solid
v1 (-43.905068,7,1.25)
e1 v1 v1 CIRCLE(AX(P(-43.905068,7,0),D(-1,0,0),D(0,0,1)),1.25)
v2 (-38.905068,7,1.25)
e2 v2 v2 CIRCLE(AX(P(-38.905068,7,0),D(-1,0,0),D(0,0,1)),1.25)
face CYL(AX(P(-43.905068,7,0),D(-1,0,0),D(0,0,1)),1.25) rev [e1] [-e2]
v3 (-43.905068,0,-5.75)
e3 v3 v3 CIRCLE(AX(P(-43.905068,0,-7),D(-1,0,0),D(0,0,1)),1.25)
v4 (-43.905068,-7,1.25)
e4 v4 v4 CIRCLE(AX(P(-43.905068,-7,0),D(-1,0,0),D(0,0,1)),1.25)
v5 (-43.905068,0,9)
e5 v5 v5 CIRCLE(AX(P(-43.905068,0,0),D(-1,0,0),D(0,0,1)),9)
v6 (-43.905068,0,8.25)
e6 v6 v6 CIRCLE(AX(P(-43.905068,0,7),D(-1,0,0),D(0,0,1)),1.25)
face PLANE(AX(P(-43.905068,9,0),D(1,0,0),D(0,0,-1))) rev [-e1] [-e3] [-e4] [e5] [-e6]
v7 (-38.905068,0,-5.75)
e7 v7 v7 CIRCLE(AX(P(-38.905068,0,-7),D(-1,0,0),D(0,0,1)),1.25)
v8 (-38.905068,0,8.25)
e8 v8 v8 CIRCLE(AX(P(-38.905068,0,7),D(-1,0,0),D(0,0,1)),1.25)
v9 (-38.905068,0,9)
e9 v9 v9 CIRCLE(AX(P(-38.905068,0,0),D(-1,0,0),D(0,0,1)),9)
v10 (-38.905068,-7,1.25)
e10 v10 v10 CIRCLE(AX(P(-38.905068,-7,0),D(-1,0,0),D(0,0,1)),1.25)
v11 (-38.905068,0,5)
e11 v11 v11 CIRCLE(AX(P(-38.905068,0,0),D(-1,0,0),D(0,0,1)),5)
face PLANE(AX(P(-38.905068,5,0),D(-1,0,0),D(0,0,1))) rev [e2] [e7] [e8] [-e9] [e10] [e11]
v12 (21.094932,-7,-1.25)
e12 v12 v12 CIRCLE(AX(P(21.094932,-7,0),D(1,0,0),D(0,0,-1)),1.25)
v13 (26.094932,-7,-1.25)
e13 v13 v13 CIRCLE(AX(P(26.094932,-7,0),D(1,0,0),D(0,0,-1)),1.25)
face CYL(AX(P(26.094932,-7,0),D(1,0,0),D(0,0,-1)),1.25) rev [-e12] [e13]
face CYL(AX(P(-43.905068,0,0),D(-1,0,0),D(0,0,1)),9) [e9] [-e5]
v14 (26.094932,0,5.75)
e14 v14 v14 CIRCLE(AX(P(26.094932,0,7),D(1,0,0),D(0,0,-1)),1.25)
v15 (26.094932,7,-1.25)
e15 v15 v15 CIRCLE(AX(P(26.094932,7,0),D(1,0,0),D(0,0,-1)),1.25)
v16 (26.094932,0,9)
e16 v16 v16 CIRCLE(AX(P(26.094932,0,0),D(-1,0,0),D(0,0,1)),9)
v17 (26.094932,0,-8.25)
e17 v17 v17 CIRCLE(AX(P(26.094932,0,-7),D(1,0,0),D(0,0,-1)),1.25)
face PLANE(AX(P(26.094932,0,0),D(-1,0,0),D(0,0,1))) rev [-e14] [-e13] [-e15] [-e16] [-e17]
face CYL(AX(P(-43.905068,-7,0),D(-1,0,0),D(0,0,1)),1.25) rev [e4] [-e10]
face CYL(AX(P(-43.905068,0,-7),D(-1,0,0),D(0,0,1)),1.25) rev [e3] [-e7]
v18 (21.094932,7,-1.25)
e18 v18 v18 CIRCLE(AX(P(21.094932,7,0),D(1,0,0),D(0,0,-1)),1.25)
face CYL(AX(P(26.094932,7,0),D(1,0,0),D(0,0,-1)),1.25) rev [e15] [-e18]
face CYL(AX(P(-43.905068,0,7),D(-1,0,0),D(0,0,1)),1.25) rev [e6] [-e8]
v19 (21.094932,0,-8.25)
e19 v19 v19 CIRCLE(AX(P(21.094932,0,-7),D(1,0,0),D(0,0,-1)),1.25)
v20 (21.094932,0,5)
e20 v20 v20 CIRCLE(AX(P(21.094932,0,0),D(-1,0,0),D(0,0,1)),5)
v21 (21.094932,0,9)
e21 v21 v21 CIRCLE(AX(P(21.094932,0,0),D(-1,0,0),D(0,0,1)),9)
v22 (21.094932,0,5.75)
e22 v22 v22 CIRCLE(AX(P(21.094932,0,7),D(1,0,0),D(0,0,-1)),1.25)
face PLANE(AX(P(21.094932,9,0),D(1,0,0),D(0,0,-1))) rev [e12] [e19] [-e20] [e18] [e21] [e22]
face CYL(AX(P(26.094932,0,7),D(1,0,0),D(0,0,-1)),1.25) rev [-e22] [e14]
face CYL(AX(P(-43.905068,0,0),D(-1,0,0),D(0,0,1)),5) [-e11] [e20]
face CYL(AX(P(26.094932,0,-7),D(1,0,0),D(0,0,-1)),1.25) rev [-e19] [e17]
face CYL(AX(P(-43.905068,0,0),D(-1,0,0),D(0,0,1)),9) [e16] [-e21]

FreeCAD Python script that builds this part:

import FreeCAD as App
import Part
import Sketcher

V = App.Vector
Q = App.Units.Quantity

doc = App.newDocument("Part")
params = doc.addObject("Spreadsheet::Sheet", "Params")
for row, (alias, value) in enumerate([
    ("sketch1_width", "70 mm"),
    ("sketch1_width2", "5 mm"),
    ("sketch1_height", "9 mm"),
    ("sketch1_height2", "4 mm"),
    ("revolution_angle", "360 deg"),
    ("sketch2_diameter", "2.5 mm"),
    ("hole_diameter", "2.5 mm"),
    ("hole_depth", "5 mm"),
    ("sketch3_diameter", "2.5 mm"),
    ("hole2_diameter", "2.5 mm"),
    ("hole2_depth", "5 mm"),
], start=1):
    params.set(f"A{row}", alias)
    params.set(f"B{row}", "=" + value)
    params.setAlias(f"B{row}", alias)

body = doc.addObject("PartDesign::Body", "Body")

# Sketch on XY plane
sketch1 = body.newObject("Sketcher::SketchObject", "Sketch")
sketch1.AttachmentSupport = (doc.getObject("XY_Plane"), [""])
sketch1.MapMode = "FlatFace"
sketch1.addGeometry([
    Part.LineSegment(V(-43.9, 0, 0), V(26.1, 0, 0)),  # 0
    Part.LineSegment(V(26.1, 0, 0), V(26.1, 9, 0)),  # 1
    Part.LineSegment(V(26.1, 9, 0), V(21.1, 9, 0)),  # 2
    Part.LineSegment(V(21.1, 9, 0), V(21.1, 5, 0)),  # 3
    Part.LineSegment(V(21.1, 5, 0), V(-38.9, 5, 0)),  # 4
    Part.LineSegment(V(-38.9, 5, 0), V(-38.9, 9, 0)),  # 5
    Part.LineSegment(V(-38.9, 9, 0), V(-43.9, 9, 0)),  # 6
    Part.LineSegment(V(-43.9, 9, 0), V(-43.9, 0, 0)),  # 7
], False)
sketch1.addConstraint([
    Sketcher.Constraint("Coincident", 0, 2, 1, 1),
    Sketcher.Constraint("Coincident", 1, 2, 2, 1),
    Sketcher.Constraint("Coincident", 2, 2, 3, 1),
    Sketcher.Constraint("Coincident", 3, 2, 4, 1),
    Sketcher.Constraint("Coincident", 4, 2, 5, 1),
    Sketcher.Constraint("Coincident", 5, 2, 6, 1),
    Sketcher.Constraint("Coincident", 6, 2, 7, 1),
    Sketcher.Constraint("Coincident", 7, 2, 0, 1),
    Sketcher.Constraint("Horizontal", 0),
    Sketcher.Constraint("Vertical", 1),
    Sketcher.Constraint("Horizontal", 2),
    Sketcher.Constraint("Vertical", 3),
    Sketcher.Constraint("Horizontal", 4),
    Sketcher.Constraint("Vertical", 5),
    Sketcher.Constraint("Horizontal", 6),
    Sketcher.Constraint("Vertical", 7),
    Sketcher.Constraint("PointOnObject", 0, 2, -1),
    Sketcher.Constraint("Horizontal", 2, 2, 5, 2),
    Sketcher.Constraint("Equal", 2, 6),
    Sketcher.Constraint("DistanceX", 0, 1, 0, 2, Q("70 mm")),
    Sketcher.Constraint("DistanceX", 2, 2, 2, 1, Q("5 mm")),
    Sketcher.Constraint("DistanceY", 1, 1, 1, 2, Q("9 mm")),
    Sketcher.Constraint("DistanceY", 3, 2, 3, 1, Q("4 mm")),
    Sketcher.Constraint("DistanceX", -1, 1, 0, 2, Q("26.094932 mm")),
])
sketch1.setExpression("Constraints[19]", "Params.sketch1_width")
sketch1.setExpression("Constraints[20]", "Params.sketch1_width2")
sketch1.setExpression("Constraints[21]", "Params.sketch1_height")
sketch1.setExpression("Constraints[22]", "Params.sketch1_height2")
revolution = body.newObject("PartDesign::Revolution", "Revolution")
revolution.Profile = sketch1
revolution.ReferenceAxis = (sketch1, ["H_Axis"])
revolution.setExpression("Angle", "Params.revolution_angle")

# Sketch on YZ plane
sketch2 = body.newObject("Sketcher::SketchObject", "Sketch001")
sketch2.AttachmentSupport = (doc.getObject("YZ_Plane"), [""])
sketch2.MapMode = "FlatFace"
sketch2.AttachmentOffset = App.Placement(V(0, 0, -43.905068), App.Rotation())
sketch2.addGeometry([
    Part.Circle(V(0, 7, 0), V(0, 0, 1), 1.2),
    Part.Circle(V(7, 0, 0), V(0, 0, 1), 1.2),
    Part.Circle(V(0, -7, 0), V(0, 0, 1), 1.2),
    Part.Circle(V(-7, 0, 0), V(0, 0, 1), 1.2),
], False)
sketch2.addConstraint([
    Sketcher.Constraint("Equal", 0, 1),
    Sketcher.Constraint("Equal", 1, 2),
    Sketcher.Constraint("Equal", 2, 3),
    Sketcher.Constraint("Symmetric", 0, 3, 2, 3, -1, 1),
    Sketcher.Constraint("Symmetric", 1, 3, 3, 3, -1, 1),
    Sketcher.Constraint("PointOnObject", 0, 3, -2),
    Sketcher.Constraint("PointOnObject", 1, 3, -1),
    Sketcher.Constraint("Diameter", 0, Q("2.5 mm")),
    Sketcher.Constraint("DistanceY", -1, 1, 0, 3, Q("7 mm")),
    Sketcher.Constraint("DistanceX", -1, 1, 1, 3, Q("7 mm")),
])
sketch2.setExpression("Constraints[7]", "Params.sketch2_diameter")
doc.recompute()
hole = body.newObject("PartDesign::Hole", "Hole")
hole.Profile = sketch2
hole.ThreadType = "None"
hole.setExpression("Diameter", "Params.hole_diameter")
hole.DepthType = "Dimension"
hole.setExpression("Depth", "Params.hole_depth")
hole.DrillPoint = "Angled"
hole.DrillPointAngle = 118
hole.Reversed = True

# Sketch on YZ plane
sketch3 = body.newObject("Sketcher::SketchObject", "Sketch002")
sketch3.AttachmentSupport = (doc.getObject("YZ_Plane"), [""])
sketch3.MapMode = "FlatFace"
sketch3.AttachmentOffset = App.Placement(V(0, 0, 26.094932), App.Rotation())
sketch3.addGeometry([
    Part.Circle(V(-7, 0, 0), V(0, 0, 1), 1.2),
    Part.Circle(V(0, -7, 0), V(0, 0, 1), 1.2),
    Part.Circle(V(7, 0, 0), V(0, 0, 1), 1.2),
    Part.Circle(V(0, 7, 0), V(0, 0, 1), 1.2),
], False)
sketch3.addConstraint([
    Sketcher.Constraint("Equal", 0, 1),
    Sketcher.Constraint("Equal", 1, 2),
    Sketcher.Constraint("Equal", 2, 3),
    Sketcher.Constraint("Symmetric", 0, 3, 2, 3, -1, 1),
    Sketcher.Constraint("Symmetric", 1, 3, 3, 3, -1, 1),
    Sketcher.Constraint("PointOnObject", 0, 3, -1),
    Sketcher.Constraint("PointOnObject", 1, 3, -2),
    Sketcher.Constraint("Diameter", 0, Q("2.5 mm")),
    Sketcher.Constraint("DistanceX", 0, 3, -1, 1, Q("7 mm")),
    Sketcher.Constraint("DistanceY", 1, 3, -1, 1, Q("7 mm")),
])
sketch3.setExpression("Constraints[7]", "Params.sketch3_diameter")
doc.recompute()
hole2 = body.newObject("PartDesign::Hole", "Hole001")
hole2.Profile = sketch3
hole2.ThreadType = "None"
hole2.setExpression("Diameter", "Params.hole2_diameter")
hole2.DepthType = "Dimension"
hole2.setExpression("Depth", "Params.hole2_depth")
hole2.DrillPoint = "Angled"
hole2.DrillPointAngle = 118

doc.recompute()
